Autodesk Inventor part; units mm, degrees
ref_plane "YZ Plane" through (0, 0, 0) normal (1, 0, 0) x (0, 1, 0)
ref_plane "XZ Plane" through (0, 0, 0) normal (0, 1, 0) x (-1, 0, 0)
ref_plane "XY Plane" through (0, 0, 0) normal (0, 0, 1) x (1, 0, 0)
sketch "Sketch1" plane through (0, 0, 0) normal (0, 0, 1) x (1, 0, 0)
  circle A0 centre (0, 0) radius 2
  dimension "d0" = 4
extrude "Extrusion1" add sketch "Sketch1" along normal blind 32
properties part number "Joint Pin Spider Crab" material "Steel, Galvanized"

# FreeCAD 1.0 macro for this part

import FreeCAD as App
import Part
import Sketcher
Q = App.Units.Quantity

doc = App.newDocument("Part")
body = doc.addObject("PartDesign::Body", "Body")

# Sketch on XY plane
sketch1 = doc.addObject("Sketcher::SketchObject", "Sketch")
body.addObject(sketch1)
sketch1.AttachmentSupport = (doc.XY_Plane, [""])
sketch1.MapMode = "FlatFace"
sketch1.addGeometry(Part.Circle(App.Vector(0, 0, 0), App.Vector(0, 0, 1), 2), False)
sketch1.addConstraint([
    Sketcher.Constraint("Coincident", 0, 3, -1, 1),
    Sketcher.Constraint("Diameter", 0, Q("4 mm")),
])
pad1 = doc.addObject("PartDesign::Pad", "Pad")
body.addObject(pad1)
pad1.Profile = sketch1
pad1.Length = 32

doc.recompute()
